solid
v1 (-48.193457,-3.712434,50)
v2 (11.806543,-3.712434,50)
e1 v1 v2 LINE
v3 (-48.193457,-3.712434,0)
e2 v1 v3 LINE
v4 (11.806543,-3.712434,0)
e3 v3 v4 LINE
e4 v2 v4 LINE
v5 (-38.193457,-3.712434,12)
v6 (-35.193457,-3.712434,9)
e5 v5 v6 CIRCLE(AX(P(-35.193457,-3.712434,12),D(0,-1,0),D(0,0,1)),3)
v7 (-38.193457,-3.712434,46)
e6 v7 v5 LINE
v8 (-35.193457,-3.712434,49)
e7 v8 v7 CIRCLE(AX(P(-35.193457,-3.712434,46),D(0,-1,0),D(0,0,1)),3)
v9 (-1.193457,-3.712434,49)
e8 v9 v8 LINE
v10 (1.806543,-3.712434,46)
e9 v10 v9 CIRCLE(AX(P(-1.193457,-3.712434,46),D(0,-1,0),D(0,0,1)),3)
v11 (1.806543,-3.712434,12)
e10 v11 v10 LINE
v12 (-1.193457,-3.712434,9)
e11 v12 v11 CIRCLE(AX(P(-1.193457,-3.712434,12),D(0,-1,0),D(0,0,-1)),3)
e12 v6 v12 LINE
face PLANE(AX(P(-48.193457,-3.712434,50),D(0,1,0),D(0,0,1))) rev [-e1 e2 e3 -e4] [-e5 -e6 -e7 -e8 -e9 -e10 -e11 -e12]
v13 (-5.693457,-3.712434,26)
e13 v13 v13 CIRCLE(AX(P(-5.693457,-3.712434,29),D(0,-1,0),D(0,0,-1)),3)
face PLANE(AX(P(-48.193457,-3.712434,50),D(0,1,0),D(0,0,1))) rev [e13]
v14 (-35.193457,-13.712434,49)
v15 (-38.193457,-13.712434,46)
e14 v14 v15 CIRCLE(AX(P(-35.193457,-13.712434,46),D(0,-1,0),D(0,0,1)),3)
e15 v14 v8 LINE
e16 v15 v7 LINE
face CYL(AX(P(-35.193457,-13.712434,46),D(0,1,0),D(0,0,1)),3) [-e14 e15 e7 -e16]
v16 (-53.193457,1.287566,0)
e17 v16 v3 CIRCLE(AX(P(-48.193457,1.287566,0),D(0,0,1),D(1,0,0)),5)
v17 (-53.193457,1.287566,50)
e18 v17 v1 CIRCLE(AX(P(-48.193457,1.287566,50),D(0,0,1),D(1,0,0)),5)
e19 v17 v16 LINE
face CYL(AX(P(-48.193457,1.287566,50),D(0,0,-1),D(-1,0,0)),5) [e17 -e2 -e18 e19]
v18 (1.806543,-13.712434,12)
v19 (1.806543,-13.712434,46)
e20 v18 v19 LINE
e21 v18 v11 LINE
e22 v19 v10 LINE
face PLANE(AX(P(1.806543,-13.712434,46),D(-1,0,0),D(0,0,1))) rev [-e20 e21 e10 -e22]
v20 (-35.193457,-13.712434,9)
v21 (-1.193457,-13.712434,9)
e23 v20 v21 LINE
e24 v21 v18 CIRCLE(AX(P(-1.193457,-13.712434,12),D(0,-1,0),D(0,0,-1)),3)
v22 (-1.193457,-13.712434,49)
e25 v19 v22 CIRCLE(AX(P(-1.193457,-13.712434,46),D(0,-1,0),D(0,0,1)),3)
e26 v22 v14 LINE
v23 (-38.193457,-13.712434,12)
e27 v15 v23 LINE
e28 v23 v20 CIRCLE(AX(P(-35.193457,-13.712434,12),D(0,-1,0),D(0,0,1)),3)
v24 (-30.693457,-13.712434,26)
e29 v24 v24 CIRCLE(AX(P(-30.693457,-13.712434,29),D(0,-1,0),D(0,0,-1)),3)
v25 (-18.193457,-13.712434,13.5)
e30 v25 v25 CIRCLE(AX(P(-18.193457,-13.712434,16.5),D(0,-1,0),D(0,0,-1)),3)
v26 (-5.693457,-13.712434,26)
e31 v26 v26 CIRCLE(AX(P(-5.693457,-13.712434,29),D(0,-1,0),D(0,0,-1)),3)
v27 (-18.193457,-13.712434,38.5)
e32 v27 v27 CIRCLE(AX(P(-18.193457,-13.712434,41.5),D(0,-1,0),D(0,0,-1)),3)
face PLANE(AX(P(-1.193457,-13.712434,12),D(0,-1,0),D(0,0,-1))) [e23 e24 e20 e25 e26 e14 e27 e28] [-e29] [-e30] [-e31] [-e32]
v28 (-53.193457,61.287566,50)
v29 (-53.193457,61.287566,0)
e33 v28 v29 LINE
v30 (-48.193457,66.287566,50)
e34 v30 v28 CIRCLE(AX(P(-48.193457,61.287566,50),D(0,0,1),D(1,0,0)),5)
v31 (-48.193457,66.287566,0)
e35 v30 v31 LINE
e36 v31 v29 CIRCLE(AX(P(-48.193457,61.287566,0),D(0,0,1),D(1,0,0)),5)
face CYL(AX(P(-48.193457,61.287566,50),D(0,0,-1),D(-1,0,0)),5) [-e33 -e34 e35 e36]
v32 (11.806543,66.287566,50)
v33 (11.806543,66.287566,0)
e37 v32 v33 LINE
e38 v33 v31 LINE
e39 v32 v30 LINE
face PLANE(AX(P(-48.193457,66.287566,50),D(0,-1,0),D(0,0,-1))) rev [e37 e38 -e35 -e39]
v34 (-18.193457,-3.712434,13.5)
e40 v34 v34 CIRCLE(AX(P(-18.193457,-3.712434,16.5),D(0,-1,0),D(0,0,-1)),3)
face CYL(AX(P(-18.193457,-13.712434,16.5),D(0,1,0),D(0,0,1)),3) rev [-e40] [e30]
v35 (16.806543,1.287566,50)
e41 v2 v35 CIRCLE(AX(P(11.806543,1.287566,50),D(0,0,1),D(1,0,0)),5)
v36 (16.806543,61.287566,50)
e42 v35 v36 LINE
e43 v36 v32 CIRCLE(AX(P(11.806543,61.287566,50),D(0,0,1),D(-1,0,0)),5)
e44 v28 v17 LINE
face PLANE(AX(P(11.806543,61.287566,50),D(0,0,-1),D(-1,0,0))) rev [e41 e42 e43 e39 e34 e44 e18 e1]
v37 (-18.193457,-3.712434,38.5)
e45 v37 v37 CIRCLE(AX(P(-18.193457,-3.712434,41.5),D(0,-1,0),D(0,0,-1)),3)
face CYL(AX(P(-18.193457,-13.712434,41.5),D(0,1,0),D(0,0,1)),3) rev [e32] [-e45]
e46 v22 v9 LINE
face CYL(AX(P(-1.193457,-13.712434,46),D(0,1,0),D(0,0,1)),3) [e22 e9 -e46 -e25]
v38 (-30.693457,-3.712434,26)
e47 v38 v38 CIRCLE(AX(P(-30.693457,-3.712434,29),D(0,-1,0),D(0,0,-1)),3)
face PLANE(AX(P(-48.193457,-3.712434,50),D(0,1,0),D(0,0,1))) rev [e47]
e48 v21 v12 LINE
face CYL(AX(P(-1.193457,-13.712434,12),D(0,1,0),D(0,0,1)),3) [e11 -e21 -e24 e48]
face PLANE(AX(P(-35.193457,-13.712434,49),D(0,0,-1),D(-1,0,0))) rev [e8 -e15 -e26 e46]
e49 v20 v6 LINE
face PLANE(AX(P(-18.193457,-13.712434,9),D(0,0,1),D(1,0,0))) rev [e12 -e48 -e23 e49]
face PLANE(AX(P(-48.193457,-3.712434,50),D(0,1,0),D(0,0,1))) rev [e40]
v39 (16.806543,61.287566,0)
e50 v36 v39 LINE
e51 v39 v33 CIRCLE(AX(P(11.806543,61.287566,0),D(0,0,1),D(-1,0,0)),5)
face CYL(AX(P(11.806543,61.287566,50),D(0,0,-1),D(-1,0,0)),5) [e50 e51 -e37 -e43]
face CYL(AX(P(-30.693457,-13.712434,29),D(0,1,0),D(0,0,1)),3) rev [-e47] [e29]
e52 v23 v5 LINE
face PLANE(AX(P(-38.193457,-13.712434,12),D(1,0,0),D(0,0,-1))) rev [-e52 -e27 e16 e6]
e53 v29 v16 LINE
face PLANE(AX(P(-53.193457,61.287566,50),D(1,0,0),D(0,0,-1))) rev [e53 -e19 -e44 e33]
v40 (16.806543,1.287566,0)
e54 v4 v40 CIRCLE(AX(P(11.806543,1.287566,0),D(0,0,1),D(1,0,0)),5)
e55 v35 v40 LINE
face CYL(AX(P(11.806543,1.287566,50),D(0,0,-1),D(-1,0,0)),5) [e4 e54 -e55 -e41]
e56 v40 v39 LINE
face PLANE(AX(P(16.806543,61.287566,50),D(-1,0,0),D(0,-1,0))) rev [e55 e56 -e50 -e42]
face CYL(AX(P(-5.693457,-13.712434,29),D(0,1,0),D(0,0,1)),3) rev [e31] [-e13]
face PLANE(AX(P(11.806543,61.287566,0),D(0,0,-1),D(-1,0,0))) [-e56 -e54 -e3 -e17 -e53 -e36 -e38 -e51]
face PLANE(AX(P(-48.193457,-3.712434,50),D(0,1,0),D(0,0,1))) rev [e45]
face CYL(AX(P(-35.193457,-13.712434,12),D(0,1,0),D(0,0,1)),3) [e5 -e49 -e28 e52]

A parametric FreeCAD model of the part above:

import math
import FreeCAD as App
import Part
import Sketcher
Q = App.Units.Quantity

doc = App.newDocument("Part")
body = doc.addObject("PartDesign::Body", "Body")

sketch1 = body.newObject("Sketcher::SketchObject", "Sketch")
sketch1.AttachmentSupport = (doc.getObject("XY_Plane"), [""])
sketch1.MapMode = "FlatFace"
sketch1.addGeometry([
    Part.LineSegment(App.Vector(12, 66, 0), App.Vector(-48, 66, 0)),
    Part.ArcOfCircle(Part.Circle(App.Vector(-48, 61, 0), App.Vector(0, 0, 1), 5), math.radians(90), math.radians(180)),
    Part.LineSegment(App.Vector(-53, 61, 0), App.Vector(-53, 1, 0)),
    Part.ArcOfCircle(Part.Circle(App.Vector(-48, 1, 0), App.Vector(0, 0, 1), 5), math.radians(180), math.radians(270)),
    Part.LineSegment(App.Vector(-48, -4, 0), App.Vector(12, -4, 0)),
    Part.ArcOfCircle(Part.Circle(App.Vector(12, 1, 0), App.Vector(0, 0, 1), 5), math.radians(-90), math.radians(0)),
    Part.LineSegment(App.Vector(17, 1, 0), App.Vector(17, 61, 0)),
    Part.ArcOfCircle(Part.Circle(App.Vector(12, 61, 0), App.Vector(0, 0, 1), 5), math.radians(0), math.radians(90)),
], False)
sketch1.addConstraint([
    Sketcher.Constraint("Tangent", 0, 2, 1, 1),
    Sketcher.Constraint("Tangent", 1, 2, 2, 1),
    Sketcher.Constraint("Tangent", 2, 2, 3, 1),
    Sketcher.Constraint("Tangent", 3, 2, 4, 1),
    Sketcher.Constraint("Tangent", 4, 2, 5, 1),
    Sketcher.Constraint("Tangent", 5, 2, 6, 1),
    Sketcher.Constraint("Tangent", 6, 2, 7, 1),
    Sketcher.Constraint("Tangent", 7, 2, 0, 1),
    Sketcher.Constraint("Horizontal", 0),
    Sketcher.Constraint("Vertical", 2),
    Sketcher.Constraint("Horizontal", 4),
    Sketcher.Constraint("Vertical", 6),
    Sketcher.Constraint("Equal", 1, 3),
    Sketcher.Constraint("Equal", 3, 5),
    Sketcher.Constraint("Equal", 5, 7),
    Sketcher.Constraint("Equal", 4, 2),
    Sketcher.Constraint("Radius", 1, Q("5 mm")),
    Sketcher.Constraint("DistanceX", 0, 2, 0, 1, Q("60 mm")),
    Sketcher.Constraint("DistanceX", 1, 3, -1, 1, Q("48.193457 mm")),
    Sketcher.Constraint("DistanceY", -1, 1, 1, 3, Q("61.287566 mm")),
])
pad1 = body.newObject("PartDesign::Pad", "Pad")
pad1.Profile = sketch1
pad1.Length = 50

sketch2 = body.newObject("Sketcher::SketchObject", "Sketch001")
sketch2.AttachmentSupport = (doc.getObject("XZ_Plane"), [""])
sketch2.MapMode = "FlatFace"
sketch2.AttachmentOffset = App.Placement(App.Vector(0, 0, 3.712434), App.Rotation())
sketch2.addGeometry([
    Part.ArcOfCircle(Part.Circle(App.Vector(-35.2, 12, 0), App.Vector(0, 0, 1), 3), math.radians(180), math.radians(270)),
    Part.LineSegment(App.Vector(-35.2, 9, 0), App.Vector(-1.2, 9, 0)),
    Part.ArcOfCircle(Part.Circle(App.Vector(-1.2, 12, 0), App.Vector(0, 0, 1), 3), math.radians(-90), math.radians(0)),
    Part.LineSegment(App.Vector(1.8, 12, 0), App.Vector(1.8, 46, 0)),
    Part.ArcOfCircle(Part.Circle(App.Vector(-1.2, 46, 0), App.Vector(0, 0, 1), 3), math.radians(0), math.radians(90)),
    Part.LineSegment(App.Vector(-1.2, 49, 0), App.Vector(-35.2, 49, 0)),
    Part.ArcOfCircle(Part.Circle(App.Vector(-35.2, 46, 0), App.Vector(0, 0, 1), 3), math.radians(90), math.radians(180)),
    Part.LineSegment(App.Vector(-38.2, 46, 0), App.Vector(-38.2, 12, 0)),
    Part.Circle(App.Vector(-18.2, 16.5, 0), App.Vector(0, 0, 1), 3),
    Part.Circle(App.Vector(-5.7, 29, 0), App.Vector(0, 0, 1), 3),
    Part.Circle(App.Vector(-30.7, 29, 0), App.Vector(0, 0, 1), 3),
    Part.Circle(App.Vector(-18.2, 41.5, 0), App.Vector(0, 0, 1), 3),
], False)
sketch2.addConstraint([
    Sketcher.Constraint("Tangent", 0, 2, 1, 1),
    Sketcher.Constraint("Tangent", 1, 2, 2, 1),
    Sketcher.Constraint("Tangent", 2, 2, 3, 1),
    Sketcher.Constraint("Tangent", 3, 2, 4, 1),
    Sketcher.Constraint("Tangent", 4, 2, 5, 1),
    Sketcher.Constraint("Tangent", 5, 2, 6, 1),
    Sketcher.Constraint("Tangent", 6, 2, 7, 1),
    Sketcher.Constraint("Tangent", 7, 2, 0, 1),
    Sketcher.Constraint("Horizontal", 1),
    Sketcher.Constraint("Vertical", 3),
    Sketcher.Constraint("Horizontal", 5),
    Sketcher.Constraint("Vertical", 7),
    Sketcher.Constraint("Equal", 0, 2),
    Sketcher.Constraint("Equal", 2, 4),
    Sketcher.Constraint("Equal", 4, 6),
    Sketcher.Constraint("Equal", 6, 8),
    Sketcher.Constraint("Equal", 8, 9),
    Sketcher.Constraint("Equal", 9, 10),
    Sketcher.Constraint("Equal", 10, 11),
    Sketcher.Constraint("Horizontal", 9, 3, 10, 3),
    Sketcher.Constraint("Vertical", 8, 3, 11, 3),
    Sketcher.Constraint("Equal", 5, 3),
    Sketcher.Constraint("Diameter", 8, Q("6 mm")),
    Sketcher.Constraint("DistanceX", 1, 1, 1, 2, Q("34 mm")),
    Sketcher.Constraint("DistanceY", -1, 1, 0, 3, Q("12 mm")),
    Sketcher.Constraint("DistanceY", -1, 1, 9, 3, Q("29 mm")),
    Sketcher.Constraint("DistanceX", 8, 3, 2, 3, Q("17 mm")),
    Sketcher.Constraint("DistanceX", 10, 3, 9, 3, Q("25 mm")),
    Sketcher.Constraint("DistanceY", 8, 3, 11, 3, Q("25 mm")),
    Sketcher.Constraint("DistanceY", -1, 1, 8, 3, Q("16.5 mm")),
    Sketcher.Constraint("DistanceX", 9, 3, 2, 3, Q("4.5 mm")),
    Sketcher.Constraint("DistanceX", 0, 3, -1, 1, Q("35.193457 mm")),
])
pad2 = body.newObject("PartDesign::Pad", "Pad001")
pad2.Profile = sketch2
pad2.Length = 10

doc.recompute()
